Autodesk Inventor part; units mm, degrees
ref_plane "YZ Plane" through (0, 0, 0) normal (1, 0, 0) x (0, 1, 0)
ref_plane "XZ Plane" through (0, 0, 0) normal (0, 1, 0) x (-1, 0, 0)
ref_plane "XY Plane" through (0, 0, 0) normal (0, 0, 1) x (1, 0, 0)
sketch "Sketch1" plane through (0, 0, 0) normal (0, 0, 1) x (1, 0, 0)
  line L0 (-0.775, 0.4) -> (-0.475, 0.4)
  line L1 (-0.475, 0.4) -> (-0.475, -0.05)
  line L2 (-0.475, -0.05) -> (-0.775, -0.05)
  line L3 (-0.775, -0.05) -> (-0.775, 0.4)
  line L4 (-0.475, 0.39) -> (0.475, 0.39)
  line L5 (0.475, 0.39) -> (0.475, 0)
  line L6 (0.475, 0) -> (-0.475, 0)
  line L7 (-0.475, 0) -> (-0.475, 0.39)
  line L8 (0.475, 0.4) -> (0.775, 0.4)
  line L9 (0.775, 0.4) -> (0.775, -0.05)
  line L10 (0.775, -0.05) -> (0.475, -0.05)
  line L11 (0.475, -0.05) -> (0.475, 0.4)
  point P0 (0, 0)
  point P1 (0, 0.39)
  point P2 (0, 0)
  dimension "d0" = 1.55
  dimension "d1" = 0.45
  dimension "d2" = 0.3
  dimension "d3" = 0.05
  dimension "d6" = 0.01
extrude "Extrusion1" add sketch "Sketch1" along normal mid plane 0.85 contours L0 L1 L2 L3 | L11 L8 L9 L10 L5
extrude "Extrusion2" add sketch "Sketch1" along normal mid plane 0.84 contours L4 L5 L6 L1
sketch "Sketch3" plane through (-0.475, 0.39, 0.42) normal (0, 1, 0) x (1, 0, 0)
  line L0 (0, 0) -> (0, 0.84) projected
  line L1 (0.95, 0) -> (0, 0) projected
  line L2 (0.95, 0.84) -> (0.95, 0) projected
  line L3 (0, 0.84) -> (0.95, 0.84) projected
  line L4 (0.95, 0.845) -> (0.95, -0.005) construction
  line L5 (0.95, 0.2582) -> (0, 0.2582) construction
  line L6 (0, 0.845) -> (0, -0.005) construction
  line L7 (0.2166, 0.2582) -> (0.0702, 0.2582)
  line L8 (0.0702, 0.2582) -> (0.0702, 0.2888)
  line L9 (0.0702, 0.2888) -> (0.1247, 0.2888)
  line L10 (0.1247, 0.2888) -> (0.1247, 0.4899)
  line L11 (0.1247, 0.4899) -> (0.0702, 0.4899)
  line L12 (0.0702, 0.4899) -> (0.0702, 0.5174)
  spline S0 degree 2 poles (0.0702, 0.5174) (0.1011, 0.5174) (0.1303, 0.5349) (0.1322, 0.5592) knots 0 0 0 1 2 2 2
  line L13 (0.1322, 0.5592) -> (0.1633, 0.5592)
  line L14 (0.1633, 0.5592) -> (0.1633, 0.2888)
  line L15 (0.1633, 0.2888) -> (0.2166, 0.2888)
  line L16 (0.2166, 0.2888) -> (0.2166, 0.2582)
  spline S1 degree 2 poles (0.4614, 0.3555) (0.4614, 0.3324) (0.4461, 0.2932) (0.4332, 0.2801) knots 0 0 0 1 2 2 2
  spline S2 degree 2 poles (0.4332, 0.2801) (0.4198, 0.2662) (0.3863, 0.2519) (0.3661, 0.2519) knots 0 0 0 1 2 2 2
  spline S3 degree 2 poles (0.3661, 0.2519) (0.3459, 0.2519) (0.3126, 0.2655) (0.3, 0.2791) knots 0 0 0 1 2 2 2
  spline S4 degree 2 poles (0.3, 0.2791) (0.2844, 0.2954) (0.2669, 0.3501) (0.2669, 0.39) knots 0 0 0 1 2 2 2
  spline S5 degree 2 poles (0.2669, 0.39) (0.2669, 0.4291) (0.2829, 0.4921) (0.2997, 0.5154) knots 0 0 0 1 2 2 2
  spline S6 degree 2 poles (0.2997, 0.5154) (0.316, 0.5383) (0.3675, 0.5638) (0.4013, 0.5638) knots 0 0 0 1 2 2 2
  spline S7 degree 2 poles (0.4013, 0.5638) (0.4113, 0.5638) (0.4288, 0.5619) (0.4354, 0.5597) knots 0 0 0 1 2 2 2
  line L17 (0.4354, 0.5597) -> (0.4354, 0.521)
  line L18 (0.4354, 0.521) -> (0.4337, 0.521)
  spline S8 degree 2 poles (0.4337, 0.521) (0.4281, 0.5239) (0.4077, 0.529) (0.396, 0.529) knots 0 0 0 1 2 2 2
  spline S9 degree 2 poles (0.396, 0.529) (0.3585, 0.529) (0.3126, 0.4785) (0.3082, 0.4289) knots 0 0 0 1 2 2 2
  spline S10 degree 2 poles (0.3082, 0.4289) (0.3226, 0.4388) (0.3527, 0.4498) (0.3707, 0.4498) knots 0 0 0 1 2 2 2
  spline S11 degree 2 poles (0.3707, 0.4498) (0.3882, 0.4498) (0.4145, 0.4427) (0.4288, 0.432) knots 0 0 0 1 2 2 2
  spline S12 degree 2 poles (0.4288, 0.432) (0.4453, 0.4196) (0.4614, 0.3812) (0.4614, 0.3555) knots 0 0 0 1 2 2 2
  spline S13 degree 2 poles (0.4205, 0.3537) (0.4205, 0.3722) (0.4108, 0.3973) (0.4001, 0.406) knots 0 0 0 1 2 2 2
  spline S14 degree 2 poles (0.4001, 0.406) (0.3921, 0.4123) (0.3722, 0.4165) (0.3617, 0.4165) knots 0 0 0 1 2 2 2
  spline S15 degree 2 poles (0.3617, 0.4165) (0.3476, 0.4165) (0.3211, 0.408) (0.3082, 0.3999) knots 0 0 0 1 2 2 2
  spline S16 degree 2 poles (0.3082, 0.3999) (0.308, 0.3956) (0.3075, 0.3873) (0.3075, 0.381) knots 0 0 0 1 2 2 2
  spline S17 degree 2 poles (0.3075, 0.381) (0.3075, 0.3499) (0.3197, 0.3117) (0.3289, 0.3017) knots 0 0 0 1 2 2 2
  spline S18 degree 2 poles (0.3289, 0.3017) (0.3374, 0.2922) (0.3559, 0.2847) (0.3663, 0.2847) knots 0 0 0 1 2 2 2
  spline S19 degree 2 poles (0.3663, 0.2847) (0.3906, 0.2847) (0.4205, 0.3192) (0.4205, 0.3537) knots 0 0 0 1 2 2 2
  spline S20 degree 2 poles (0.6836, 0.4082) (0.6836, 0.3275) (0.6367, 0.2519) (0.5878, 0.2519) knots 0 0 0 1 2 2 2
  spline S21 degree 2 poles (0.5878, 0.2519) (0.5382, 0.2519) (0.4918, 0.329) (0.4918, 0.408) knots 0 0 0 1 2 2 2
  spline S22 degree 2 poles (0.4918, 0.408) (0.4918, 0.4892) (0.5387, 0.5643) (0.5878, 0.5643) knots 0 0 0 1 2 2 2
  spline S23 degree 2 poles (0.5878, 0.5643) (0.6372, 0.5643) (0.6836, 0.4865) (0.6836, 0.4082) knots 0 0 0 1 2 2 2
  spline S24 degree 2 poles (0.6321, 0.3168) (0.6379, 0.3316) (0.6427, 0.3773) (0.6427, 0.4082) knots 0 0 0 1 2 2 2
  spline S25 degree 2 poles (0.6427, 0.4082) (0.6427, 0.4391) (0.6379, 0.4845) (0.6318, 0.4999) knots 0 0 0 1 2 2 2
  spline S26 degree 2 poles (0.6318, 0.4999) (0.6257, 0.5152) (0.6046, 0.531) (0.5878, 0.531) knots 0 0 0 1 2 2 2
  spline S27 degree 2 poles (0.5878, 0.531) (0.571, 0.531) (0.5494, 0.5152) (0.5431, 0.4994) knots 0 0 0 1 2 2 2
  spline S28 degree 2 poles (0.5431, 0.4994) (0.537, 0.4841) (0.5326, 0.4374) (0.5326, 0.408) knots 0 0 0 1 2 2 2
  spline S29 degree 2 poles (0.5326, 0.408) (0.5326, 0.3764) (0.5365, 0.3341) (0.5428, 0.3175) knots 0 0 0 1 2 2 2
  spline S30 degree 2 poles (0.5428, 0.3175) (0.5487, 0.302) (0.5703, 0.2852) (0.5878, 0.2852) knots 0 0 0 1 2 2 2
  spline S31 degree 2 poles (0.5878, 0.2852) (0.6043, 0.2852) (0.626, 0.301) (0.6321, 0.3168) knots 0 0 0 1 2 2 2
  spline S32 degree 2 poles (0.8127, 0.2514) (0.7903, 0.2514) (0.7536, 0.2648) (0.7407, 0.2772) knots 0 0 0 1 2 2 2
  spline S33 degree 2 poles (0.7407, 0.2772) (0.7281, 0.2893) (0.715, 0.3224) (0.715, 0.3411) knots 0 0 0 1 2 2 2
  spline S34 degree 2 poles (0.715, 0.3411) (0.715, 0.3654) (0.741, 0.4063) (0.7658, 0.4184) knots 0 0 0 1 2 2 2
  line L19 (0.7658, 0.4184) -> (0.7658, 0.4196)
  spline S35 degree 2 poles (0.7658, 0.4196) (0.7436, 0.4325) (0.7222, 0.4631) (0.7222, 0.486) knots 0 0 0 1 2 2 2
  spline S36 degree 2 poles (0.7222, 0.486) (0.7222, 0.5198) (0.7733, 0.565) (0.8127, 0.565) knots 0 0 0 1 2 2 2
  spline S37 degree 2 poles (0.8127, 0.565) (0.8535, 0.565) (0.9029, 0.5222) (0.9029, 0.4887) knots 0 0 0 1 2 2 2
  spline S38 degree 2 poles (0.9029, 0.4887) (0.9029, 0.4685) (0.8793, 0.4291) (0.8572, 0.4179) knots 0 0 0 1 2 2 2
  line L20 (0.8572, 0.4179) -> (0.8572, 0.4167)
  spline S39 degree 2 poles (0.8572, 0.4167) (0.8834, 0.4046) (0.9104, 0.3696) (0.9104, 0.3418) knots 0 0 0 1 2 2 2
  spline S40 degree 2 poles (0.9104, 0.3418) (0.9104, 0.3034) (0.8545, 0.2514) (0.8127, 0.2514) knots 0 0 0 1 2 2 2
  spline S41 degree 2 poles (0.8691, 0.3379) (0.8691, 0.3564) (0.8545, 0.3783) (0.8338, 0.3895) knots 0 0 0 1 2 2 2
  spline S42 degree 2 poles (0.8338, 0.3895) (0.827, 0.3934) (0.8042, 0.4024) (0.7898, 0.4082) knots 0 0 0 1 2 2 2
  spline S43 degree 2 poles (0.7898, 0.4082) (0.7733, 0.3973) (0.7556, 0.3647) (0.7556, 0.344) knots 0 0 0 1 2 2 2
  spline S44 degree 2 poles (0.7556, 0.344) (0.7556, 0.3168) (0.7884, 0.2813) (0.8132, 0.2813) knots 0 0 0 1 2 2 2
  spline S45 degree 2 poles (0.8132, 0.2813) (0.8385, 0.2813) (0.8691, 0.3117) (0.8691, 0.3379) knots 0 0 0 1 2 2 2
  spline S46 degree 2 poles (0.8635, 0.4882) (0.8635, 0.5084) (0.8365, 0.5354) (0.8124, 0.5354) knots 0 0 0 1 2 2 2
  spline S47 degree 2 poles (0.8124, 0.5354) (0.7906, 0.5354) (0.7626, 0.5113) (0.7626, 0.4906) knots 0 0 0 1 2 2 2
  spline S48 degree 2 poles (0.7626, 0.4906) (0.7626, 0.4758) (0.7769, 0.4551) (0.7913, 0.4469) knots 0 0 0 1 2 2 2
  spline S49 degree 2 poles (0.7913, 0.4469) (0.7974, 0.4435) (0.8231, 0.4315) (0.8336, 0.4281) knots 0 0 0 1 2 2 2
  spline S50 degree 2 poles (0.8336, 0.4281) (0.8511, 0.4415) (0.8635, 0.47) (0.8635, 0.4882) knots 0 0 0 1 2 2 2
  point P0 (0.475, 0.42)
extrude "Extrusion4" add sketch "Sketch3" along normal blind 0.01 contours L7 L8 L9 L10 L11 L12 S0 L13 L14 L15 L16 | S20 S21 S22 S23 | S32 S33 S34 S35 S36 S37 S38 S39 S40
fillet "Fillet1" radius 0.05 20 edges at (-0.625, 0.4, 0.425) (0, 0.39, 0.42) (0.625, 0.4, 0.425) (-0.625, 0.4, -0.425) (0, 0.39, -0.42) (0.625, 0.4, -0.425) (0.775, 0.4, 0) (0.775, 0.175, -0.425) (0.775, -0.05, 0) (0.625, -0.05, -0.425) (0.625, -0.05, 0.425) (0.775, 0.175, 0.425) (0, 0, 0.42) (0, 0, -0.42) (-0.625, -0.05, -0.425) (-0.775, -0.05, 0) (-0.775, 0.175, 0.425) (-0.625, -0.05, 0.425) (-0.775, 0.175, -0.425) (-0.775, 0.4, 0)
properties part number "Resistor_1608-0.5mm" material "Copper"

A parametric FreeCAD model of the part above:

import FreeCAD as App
import Part
import Sketcher

V = App.Vector


def edges_at(feature, points):
    """Names of the edges that pass closest to the given points."""
    edges = feature.Shape.Edges
    near = lambda p: min(range(len(edges)), key=lambda i: edges[i].distToShape(Part.Vertex(*p))[0])
    return sorted({f"Edge{near(p) + 1}" for p in points})

doc = App.newDocument("Part")
body = doc.addObject("PartDesign::Body", "Body")
body.AllowCompound = True

sketch1 = doc.addObject("Sketcher::SketchObject", "Sketch")
body.addObject(sketch1)
sketch1.AttachmentSupport = (doc.XY_Plane, [""])
sketch1.MapMode = "FlatFace"
sketch1.addGeometry(Part.LineSegment(V(-0.47, 0.4, 0), V(-0.78, 0.4, 0)), False)
sketch1.addGeometry(Part.LineSegment(V(-0.78, 0.4, 0), V(-0.78, -0.05, 0)), False)
sketch1.addGeometry(Part.LineSegment(V(-0.78, -0.05, 0), V(-0.47, -0.05, 0)), False)
sketch1.addGeometry(Part.LineSegment(V(-0.47, -0.05, 0), V(-0.47, 0.4, 0)), False)
sketch1.addGeometry(Part.LineSegment(V(0.47, 0.4, 0), V(0.47, -0.05, 0)), False)
sketch1.addGeometry(Part.LineSegment(V(0.47, -0.05, 0), V(0.78, -0.05, 0)), False)
sketch1.addGeometry(Part.LineSegment(V(0.78, -0.05, 0), V(0.78, 0.4, 0)), False)
sketch1.addGeometry(Part.LineSegment(V(0.78, 0.4, 0), V(0.47, 0.4, 0)), False)
sketch1.addConstraint(Sketcher.Constraint("Coincident", 0, 2, 1, 1))
sketch1.addConstraint(Sketcher.Constraint("Coincident", 1, 2, 2, 1))
sketch1.addConstraint(Sketcher.Constraint("Coincident", 2, 2, 3, 1))
sketch1.addConstraint(Sketcher.Constraint("Coincident", 3, 2, 0, 1))
sketch1.addConstraint(Sketcher.Constraint("Coincident", 4, 2, 5, 1))
sketch1.addConstraint(Sketcher.Constraint("Coincident", 5, 2, 6, 1))
sketch1.addConstraint(Sketcher.Constraint("Coincident", 6, 2, 7, 1))
sketch1.addConstraint(Sketcher.Constraint("Coincident", 7, 2, 4, 1))
sketch1.addConstraint(Sketcher.Constraint("Horizontal", 0))
sketch1.addConstraint(Sketcher.Constraint("Vertical", 1))
sketch1.addConstraint(Sketcher.Constraint("Horizontal", 2))
sketch1.addConstraint(Sketcher.Constraint("Vertical", 3))
sketch1.addConstraint(Sketcher.Constraint("Vertical", 4))
sketch1.addConstraint(Sketcher.Constraint("Horizontal", 5))
sketch1.addConstraint(Sketcher.Constraint("Vertical", 6))
sketch1.addConstraint(Sketcher.Constraint("Horizontal", 7))
sketch1.addConstraint(Sketcher.Constraint("Symmetric", 2, 2, 4, 2, -2))
sketch1.addConstraint(Sketcher.Constraint("Symmetric", 0, 2, 6, 2, -2))
sketch1.addConstraint(Sketcher.Constraint("DistanceX", 0, 2, 0, 1, 0.3))
sketch1.addConstraint(Sketcher.Constraint("DistanceY", 1, 2, 1, 1, 0.45))
sketch1.addConstraint(Sketcher.Constraint("DistanceY", 1, 2, -1, 1, 0.05))
sketch1.addConstraint(Sketcher.Constraint("DistanceX", 1, 2, 5, 2, 1.55))
pad1 = doc.addObject("PartDesign::Pad", "Pad")
body.addObject(pad1)
pad1.Profile = sketch1
pad1.Length = 0.85
pad1.Midplane = True

sketch2 = doc.addObject("Sketcher::SketchObject", "Sketch001")
body.addObject(sketch2)
sketch2.AttachmentSupport = (doc.XY_Plane, [""])
sketch2.MapMode = "FlatFace"
sketch2.addGeometry(Part.LineSegment(V(0.47, 0.39, 0), V(-0.47, 0.39, 0)), False)
sketch2.addGeometry(Part.LineSegment(V(-0.47, 0.39, 0), V(-0.47, 0, 0)), False)
sketch2.addGeometry(Part.LineSegment(V(-0.47, 0, 0), V(0.47, 0, 0)), False)
sketch2.addGeometry(Part.LineSegment(V(0.47, 0, 0), V(0.47, 0.39, 0)), False)
sketch2.addConstraint(Sketcher.Constraint("Coincident", 0, 2, 1, 1))
sketch2.addConstraint(Sketcher.Constraint("Coincident", 1, 2, 2, 1))
sketch2.addConstraint(Sketcher.Constraint("Coincident", 2, 2, 3, 1))
sketch2.addConstraint(Sketcher.Constraint("Coincident", 3, 2, 0, 1))
sketch2.addConstraint(Sketcher.Constraint("Horizontal", 0))
sketch2.addConstraint(Sketcher.Constraint("Vertical", 1))
sketch2.addConstraint(Sketcher.Constraint("Horizontal", 2))
sketch2.addConstraint(Sketcher.Constraint("Vertical", 3))
sketch2.addConstraint(Sketcher.Constraint("Symmetric", 1, 2, 2, 2, -1, 1))
sketch2.addConstraint(Sketcher.Constraint("DistanceX", 0, 2, 0, 1, 0.95))
sketch2.addConstraint(Sketcher.Constraint("DistanceY", 1, 2, 1, 1, 0.39))
pad2 = doc.addObject("PartDesign::Pad", "Pad001")
body.addObject(pad2)
pad2.Profile = sketch2
pad2.Length = 0.84
pad2.Midplane = True

sketch3 = doc.addObject("Sketcher::SketchObject", "Sketch002")
body.addObject(sketch3)
sketch3.AttachmentSupport = (doc.XZ_Plane, [""])
sketch3.MapMode = "FlatFace"
sketch3.AttachmentOffset = App.Placement(V(0, 0, -0.39), App.Rotation())
sketch3.addGeometry(Part.LineSegment(V(-0.4048, 0.1618, 0), V(-0.2584, 0.1618, 0)), False)
sketch3.addGeometry(Part.LineSegment(V(-0.2584, 0.1618, 0), V(-0.2584, 0.1312, 0)), False)
sketch3.addGeometry(Part.LineSegment(V(-0.2584, 0.1312, 0), V(-0.3117, 0.1312, 0)), False)
sketch3.addGeometry(Part.LineSegment(V(-0.3117, 0.1312, 0), V(-0.3117, -0.1392, 0)), False)
sketch3.addGeometry(Part.LineSegment(V(-0.3117, -0.1392, 0), V(-0.3428, -0.1392, 0)), False)
sketch3.addGeometry(Part.BSplineCurve([V(-0.4048, -0.0974, 0), V(-0.3739, -0.0974, 0), V(-0.3447, -0.1149, 0), V(-0.3428, -0.1392, 0)], [3, 1, 3], [0, 1, 2], False, 2, [1, 1, 1, 1], False), False)
sketch3.addGeometry(Part.LineSegment(V(-0.4048, -0.0974, 0), V(-0.4048, -0.0699, 0)), False)
sketch3.addGeometry(Part.LineSegment(V(-0.4048, -0.0699, 0), V(-0.3503, -0.0699, 0)), False)
sketch3.addGeometry(Part.LineSegment(V(-0.3503, -0.0699, 0), V(-0.3503, 0.1312, 0)), False)
sketch3.addGeometry(Part.LineSegment(V(-0.3503, 0.1312, 0), V(-0.4048, 0.1312, 0)), False)
sketch3.addGeometry(Part.LineSegment(V(-0.4048, 0.1312, 0), V(-0.4048, 0.1618, 0)), False)
sketch3.addGeometry(Part.BSplineCurve([V(0.2086, 0.0118, 0), V(0.2086, 0.0925, 0), V(0.1617, 0.1681, 0), V(0.1128, 0.1681, 0)], [3, 1, 3], [0, 1, 2], False, 2, [1, 1, 1, 1], False), False)
sketch3.addGeometry(Part.BSplineCurve([V(0.1128, -0.1443, 0), V(0.1622, -0.1443, 0), V(0.2086, -0.0665, 0), V(0.2086, 0.0118, 0)], [3, 1, 3], [0, 1, 2], False, 2, [1, 1, 1, 1], False), False)
sketch3.addGeometry(Part.BSplineCurve([V(0.0168, 0.012, 0), V(0.0168, -0.0692, 0), V(0.0637, -0.1443, 0), V(0.1128, -0.1443, 0)], [3, 1, 3], [0, 1, 2], False, 2, [1, 1, 1, 1], False), False)
sketch3.addGeometry(Part.BSplineCurve([V(0.1128, 0.1681, 0), V(0.0632, 0.1681, 0), V(0.0168, 0.091, 0), V(0.0168, 0.012, 0)], [3, 1, 3], [0, 1, 2], False, 2, [1, 1, 1, 1], False), False)
sketch3.addGeometry(Part.BSplineCurve([V(0.1571, 0.1032, 0), V(0.1629, 0.0884, 0), V(0.1677, 0.0427, 0), V(0.1677, 0.0118, 0)], [3, 1, 3], [0, 1, 2], False, 2, [1, 1, 1, 1], False), False)
sketch3.addGeometry(Part.BSplineCurve([V(0.1128, 0.1348, 0), V(0.1293, 0.1348, 0), V(0.151, 0.119, 0), V(0.1571, 0.1032, 0)], [3, 1, 3], [0, 1, 2], False, 2, [1, 1, 1, 1], False), False)
sketch3.addGeometry(Part.BSplineCurve([V(0.0678, 0.1025, 0), V(0.0737, 0.118, 0), V(0.0953, 0.1348, 0), V(0.1128, 0.1348, 0)], [3, 1, 3], [0, 1, 2], False, 2, [1, 1, 1, 1], False), False)
sketch3.addGeometry(Part.BSplineCurve([V(0.0576, 0.012, 0), V(0.0576, 0.0436, 0), V(0.0615, 0.0859, 0), V(0.0678, 0.1025, 0)], [3, 1, 3], [0, 1, 2], False, 2, [1, 1, 1, 1], False), False)
sketch3.addGeometry(Part.BSplineCurve([V(0.0681, -0.0794, 0), V(0.062, -0.0641, 0), V(0.0576, -0.0174, 0), V(0.0576, 0.012, 0)], [3, 1, 3], [0, 1, 2], False, 2, [1, 1, 1, 1], False), False)
sketch3.addGeometry(Part.BSplineCurve([V(0.1128, -0.111, 0), V(0.096, -0.111, 0), V(0.0744, -0.0952, 0), V(0.0681, -0.0794, 0)], [3, 1, 3], [0, 1, 2], False, 2, [1, 1, 1, 1], False), False)
sketch3.addGeometry(Part.BSplineCurve([V(0.1568, -0.0799, 0), V(0.1507, -0.0952, 0), V(0.1296, -0.111, 0), V(0.1128, -0.111, 0)], [3, 1, 3], [0, 1, 2], False, 2, [1, 1, 1, 1], False), False)
sketch3.addGeometry(Part.BSplineCurve([V(0.1677, 0.0118, 0), V(0.1677, -0.0191, 0), V(0.1629, -0.0645, 0), V(0.1568, -0.0799, 0)], [3, 1, 3], [0, 1, 2], False, 2, [1, 1, 1, 1], False), False)
sketch3.addGeometry(Part.BSplineCurve([V(0.3377, 0.1686, 0), V(0.3153, 0.1686, 0), V(0.2786, 0.1552, 0), V(0.2657, 0.1428, 0)], [3, 1, 3], [0, 1, 2], False, 2, [1, 1, 1, 1], False), False)
sketch3.addGeometry(Part.BSplineCurve([V(0.4354, 0.0782, 0), V(0.4354, 0.1166, 0), V(0.3795, 0.1686, 0), V(0.3377, 0.1686, 0)], [3, 1, 3], [0, 1, 2], False, 2, [1, 1, 1, 1], False), False)
sketch3.addGeometry(Part.BSplineCurve([V(0.3822, 0.0021, 0), V(0.4084, 0.0154, 0), V(0.4354, 0.0504, 0), V(0.4354, 0.0782, 0)], [3, 1, 3], [0, 1, 2], False, 2, [1, 1, 1, 1], False), False)
sketch3.addGeometry(Part.BSplineCurve([V(0.4279, -0.0687, 0), V(0.4279, -0.0485, 0), V(0.4043, -0.0091, 0), V(0.3822, 0.0021, 0)], [3, 1, 3], [0, 1, 2], False, 2, [1, 1, 1, 1], False), False)
sketch3.addGeometry(Part.BSplineCurve([V(0.3377, -0.145, 0), V(0.3785, -0.145, 0), V(0.4279, -0.1022, 0), V(0.4279, -0.0687, 0)], [3, 1, 3], [0, 1, 2], False, 2, [1, 1, 1, 1], False), False)
sketch3.addGeometry(Part.BSplineCurve([V(0.2472, -0.066, 0), V(0.2472, -0.0998, 0), V(0.2983, -0.145, 0), V(0.3377, -0.145, 0)], [3, 1, 3], [0, 1, 2], False, 2, [1, 1, 1, 1], False), False)
sketch3.addGeometry(Part.BSplineCurve([V(0.2908, 0.0016, 0), V(0.2686, -0.0125, 0), V(0.2472, -0.0431, 0), V(0.2472, -0.066, 0)], [3, 1, 3], [0, 1, 2], False, 2, [1, 1, 1, 1], False), False)
sketch3.addGeometry(Part.BSplineCurve([V(0.24, 0.0789, 0), V(0.24, 0.0546, 0), V(0.266, 0.0137, 0), V(0.2908, 0.0016, 0)], [3, 1, 3], [0, 1, 2], False, 2, [1, 1, 1, 1], False), False)
sketch3.addGeometry(Part.BSplineCurve([V(0.2657, 0.1428, 0), V(0.2531, 0.1307, 0), V(0.24, 0.0976, 0), V(0.24, 0.0789, 0)], [3, 1, 3], [0, 1, 2], False, 2, [1, 1, 1, 1], False), False)
sketch3.addGeometry(Part.BSplineCurve([V(0.3941, 0.0821, 0), V(0.3941, 0.0636, 0), V(0.3795, 0.0417, 0), V(0.3588, 0.0305, 0)], [3, 1, 3], [0, 1, 2], False, 2, [1, 1, 1, 1], False), False)
sketch3.addGeometry(Part.BSplineCurve([V(0.3382, 0.1387, 0), V(0.3635, 0.1387, 0), V(0.3941, 0.1083, 0), V(0.3941, 0.0821, 0)], [3, 1, 3], [0, 1, 2], False, 2, [1, 1, 1, 1], False), False)
sketch3.addGeometry(Part.BSplineCurve([V(0.2806, 0.076, 0), V(0.2806, 0.1032, 0), V(0.3134, 0.1387, 0), V(0.3382, 0.1387, 0)], [3, 1, 3], [0, 1, 2], False, 2, [1, 1, 1, 1], False), False)
sketch3.addGeometry(Part.BSplineCurve([V(0.3148, 0.0118, 0), V(0.2983, 0.0227, 0), V(0.2806, 0.0553, 0), V(0.2806, 0.076, 0)], [3, 1, 3], [0, 1, 2], False, 2, [1, 1, 1, 1], False), False)
sketch3.addGeometry(Part.BSplineCurve([V(0.3588, 0.0305, 0), V(0.352, 0.0266, 0), V(0.3292, 0.0176, 0), V(0.3148, 0.0118, 0)], [3, 1, 3], [0, 1, 2], False, 2, [1, 1, 1, 1], False), False)
sketch3.addGeometry(Part.BSplineCurve([V(0.3885, -0.0682, 0), V(0.3885, -0.0884, 0), V(0.3615, -0.1154, 0), V(0.3374, -0.1154, 0)], [3, 1, 3], [0, 1, 2], False, 2, [1, 1, 1, 1], False), False)
sketch3.addGeometry(Part.BSplineCurve([V(0.3586, -0.0081, 0), V(0.3761, -0.0215, 0), V(0.3885, -0.05, 0), V(0.3885, -0.0682, 0)], [3, 1, 3], [0, 1, 2], False, 2, [1, 1, 1, 1], False), False)
sketch3.addGeometry(Part.BSplineCurve([V(0.3163, -0.0269, 0), V(0.3224, -0.0235, 0), V(0.3481, -0.0115, 0), V(0.3586, -0.0081, 0)], [3, 1, 3], [0, 1, 2], False, 2, [1, 1, 1, 1], False), False)
sketch3.addGeometry(Part.BSplineCurve([V(0.2876, -0.0706, 0), V(0.2876, -0.0558, 0), V(0.3019, -0.0351, 0), V(0.3163, -0.0269, 0)], [3, 1, 3], [0, 1, 2], False, 2, [1, 1, 1, 1], False), False)
sketch3.addGeometry(Part.BSplineCurve([V(0.3374, -0.1154, 0), V(0.3156, -0.1154, 0), V(0.2876, -0.0913, 0), V(0.2876, -0.0706, 0)], [3, 1, 3], [0, 1, 2], False, 2, [1, 1, 1, 1], False), False)
sketch3.addConstraint(Sketcher.Constraint("Block", 5))
sketch3.addConstraint(Sketcher.Constraint("Block", 11))
sketch3.addConstraint(Sketcher.Constraint("Block", 12))
sketch3.addConstraint(Sketcher.Constraint("Block", 13))
sketch3.addConstraint(Sketcher.Constraint("Block", 14))
sketch3.addConstraint(Sketcher.Constraint("Block", 15))
sketch3.addConstraint(Sketcher.Constraint("Block", 16))
sketch3.addConstraint(Sketcher.Constraint("Block", 17))
sketch3.addConstraint(Sketcher.Constraint("Block", 18))
sketch3.addConstraint(Sketcher.Constraint("Block", 19))
sketch3.addConstraint(Sketcher.Constraint("Block", 20))
sketch3.addConstraint(Sketcher.Constraint("Block", 21))
sketch3.addConstraint(Sketcher.Constraint("Block", 22))
sketch3.addConstraint(Sketcher.Constraint("Block", 23))
sketch3.addConstraint(Sketcher.Constraint("Block", 24))
sketch3.addConstraint(Sketcher.Constraint("Block", 25))
sketch3.addConstraint(Sketcher.Constraint("Block", 26))
sketch3.addConstraint(Sketcher.Constraint("Block", 27))
sketch3.addConstraint(Sketcher.Constraint("Block", 28))
sketch3.addConstraint(Sketcher.Constraint("Block", 29))
sketch3.addConstraint(Sketcher.Constraint("Block", 30))
sketch3.addConstraint(Sketcher.Constraint("Block", 31))
sketch3.addConstraint(Sketcher.Constraint("Block", 32))
sketch3.addConstraint(Sketcher.Constraint("Block", 33))
sketch3.addConstraint(Sketcher.Constraint("Block", 34))
sketch3.addConstraint(Sketcher.Constraint("Block", 35))
sketch3.addConstraint(Sketcher.Constraint("Block", 36))
sketch3.addConstraint(Sketcher.Constraint("Block", 37))
sketch3.addConstraint(Sketcher.Constraint("Block", 38))
sketch3.addConstraint(Sketcher.Constraint("Block", 39))
sketch3.addConstraint(Sketcher.Constraint("Block", 40))
sketch3.addConstraint(Sketcher.Constraint("Block", 41))
sketch3.addConstraint(Sketcher.Constraint("Coincident", 0, 2, 1, 1))
sketch3.addConstraint(Sketcher.Constraint("Coincident", 1, 2, 2, 1))
sketch3.addConstraint(Sketcher.Constraint("Coincident", 2, 2, 3, 1))
sketch3.addConstraint(Sketcher.Constraint("Coincident", 3, 2, 4, 1))
sketch3.addConstraint(Sketcher.Constraint("Coincident", 4, 2, 5, 2))
sketch3.addConstraint(Sketcher.Constraint("Coincident", 5, 1, 6, 1))
sketch3.addConstraint(Sketcher.Constraint("Coincident", 6, 2, 7, 1))
sketch3.addConstraint(Sketcher.Constraint("Coincident", 7, 2, 8, 1))
sketch3.addConstraint(Sketcher.Constraint("Coincident", 8, 2, 9, 1))
sketch3.addConstraint(Sketcher.Constraint("Coincident", 9, 2, 10, 1))
sketch3.addConstraint(Sketcher.Constraint("Coincident", 10, 2, 0, 1))
sketch3.addConstraint(Sketcher.Constraint("Horizontal", 0))
sketch3.addConstraint(Sketcher.Constraint("Vertical", 1))
sketch3.addConstraint(Sketcher.Constraint("Horizontal", 2))
sketch3.addConstraint(Sketcher.Constraint("Vertical", 3))
sketch3.addConstraint(Sketcher.Constraint("Horizontal", 4))
sketch3.addConstraint(Sketcher.Constraint("Vertical", 6))
sketch3.addConstraint(Sketcher.Constraint("Horizontal", 7))
sketch3.addConstraint(Sketcher.Constraint("Vertical", 8))
sketch3.addConstraint(Sketcher.Constraint("Horizontal", 9))
sketch3.addConstraint(Sketcher.Constraint("Vertical", 10))
sketch3.addConstraint(Sketcher.Constraint("Horizontal", 2, 2, 8, 2))
sketch3.addConstraint(Sketcher.Constraint("Vertical", 6, 2, 9, 2))
sketch3.addConstraint(Sketcher.Constraint("DistanceX", 4, 2, 4, 1, 0.031))
sketch3.addConstraint(Sketcher.Constraint("DistanceY", 8, 1, 8, 2, 0.201))
sketch3.addConstraint(Sketcher.Constraint("DistanceY", 6, 2, -1, 1, 0.07))
sketch3.addConstraint(Sketcher.Constraint("DistanceX", 0, 1, 0, 2, 0.1464))
sketch3.addConstraint(Sketcher.Constraint("DistanceX", 7, 1, 7, 2, 0.0545))
sketch3.addConstraint(Sketcher.Constraint("DistanceY", 1, 2, 1, 1, 0.0306))
pad3 = doc.addObject("PartDesign::Pad", "Pad002")
body.addObject(pad3)
pad3.Profile = sketch3
pad3.Length = 0.01
pad3.Reversed = True
doc.recompute()

fillet = doc.addObject("PartDesign::Fillet", "Fillet")
body.addObject(fillet)
fillet.Base = (pad3, edges_at(pad3, [
    (-0.625, 0.4, 0.425),
    (0, 0.39, 0.42),
    (0.625, 0.4, 0.425),
    (-0.625, 0.4, -0.425),
    (0, 0.39, -0.42),
    (0.625, 0.4, -0.425),
    (0.775, 0.4, 0),
    (0.775, 0.175, -0.425),
    (0.775, -0.05, 0),
    (0.625, -0.05, -0.425),
    (0.625, -0.05, 0.425),
    (0.775, 0.175, 0.425),
    (0, 0, 0.42),
    (0, 0, -0.42),
    (-0.625, -0.05, -0.425),
    (-0.775, -0.05, 0),
    (-0.775, 0.175, 0.425),
    (-0.625, -0.05, 0.425),
    (-0.775, 0.175, -0.425),
    (-0.775, 0.4, 0),
]))
fillet.Radius = 0.05

doc.recompute()
